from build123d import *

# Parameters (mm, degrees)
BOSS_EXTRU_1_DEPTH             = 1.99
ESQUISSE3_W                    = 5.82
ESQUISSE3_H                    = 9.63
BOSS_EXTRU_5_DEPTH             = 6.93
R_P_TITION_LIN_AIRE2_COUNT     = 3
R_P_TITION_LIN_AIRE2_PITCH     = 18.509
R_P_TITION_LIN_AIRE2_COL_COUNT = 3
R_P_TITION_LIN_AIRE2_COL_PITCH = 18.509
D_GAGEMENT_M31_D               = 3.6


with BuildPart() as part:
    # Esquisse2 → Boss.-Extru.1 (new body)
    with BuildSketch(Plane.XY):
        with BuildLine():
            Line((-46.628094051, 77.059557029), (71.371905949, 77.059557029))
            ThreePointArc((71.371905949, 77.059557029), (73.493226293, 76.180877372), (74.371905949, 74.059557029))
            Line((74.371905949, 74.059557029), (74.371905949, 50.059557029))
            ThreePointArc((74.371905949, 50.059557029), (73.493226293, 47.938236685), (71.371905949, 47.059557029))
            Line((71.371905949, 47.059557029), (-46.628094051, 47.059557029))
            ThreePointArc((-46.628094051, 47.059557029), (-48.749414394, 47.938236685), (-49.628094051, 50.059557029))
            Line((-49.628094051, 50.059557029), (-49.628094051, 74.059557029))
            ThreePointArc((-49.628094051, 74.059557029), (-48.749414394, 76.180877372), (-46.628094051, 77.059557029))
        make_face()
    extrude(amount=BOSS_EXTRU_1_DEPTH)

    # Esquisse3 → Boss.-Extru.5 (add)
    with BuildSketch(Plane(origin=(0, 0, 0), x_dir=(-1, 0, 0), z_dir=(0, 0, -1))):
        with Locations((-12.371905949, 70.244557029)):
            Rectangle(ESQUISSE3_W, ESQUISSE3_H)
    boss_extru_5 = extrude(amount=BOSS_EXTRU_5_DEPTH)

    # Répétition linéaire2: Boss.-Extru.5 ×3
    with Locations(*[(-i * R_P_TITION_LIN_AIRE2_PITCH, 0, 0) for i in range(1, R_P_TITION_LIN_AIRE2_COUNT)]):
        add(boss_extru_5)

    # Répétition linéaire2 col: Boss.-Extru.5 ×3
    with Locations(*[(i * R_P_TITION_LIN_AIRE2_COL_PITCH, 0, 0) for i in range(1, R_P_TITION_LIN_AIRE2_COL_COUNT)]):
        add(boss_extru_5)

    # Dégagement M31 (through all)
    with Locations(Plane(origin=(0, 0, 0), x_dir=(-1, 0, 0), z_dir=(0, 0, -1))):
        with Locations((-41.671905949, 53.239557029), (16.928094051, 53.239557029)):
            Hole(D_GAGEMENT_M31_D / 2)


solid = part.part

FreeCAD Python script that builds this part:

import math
import FreeCAD as App
import Part
import Sketcher

V = App.Vector
Q = App.Units.Quantity


def add_polygon(sketch, points):
    """Adds a closed chain of lines whose ends are joined by coincident constraints."""
    first, n = sketch.GeometryCount, len(points)
    for a, b in zip(points, points[1:] + points[:1]):
        sketch.addGeometry(Part.LineSegment(App.Vector(*a, 0), App.Vector(*b, 0)), False)
    for i in range(n):
        sketch.addConstraint(Sketcher.Constraint("Coincident", first + i, 2, first + (i + 1) % n, 1))

doc = App.newDocument("Part")
body = doc.addObject("PartDesign::Body", "Body")

# Sketch on XY plane
sketch1 = body.newObject("Sketcher::SketchObject", "Sketch")
sketch1.AttachmentSupport = (doc.getObject("XY_Plane"), [""])
sketch1.MapMode = "FlatFace"
sketch1.addGeometry([
    Part.LineSegment(V(71.4, 77.1, 0), V(-46.6, 77.1, 0)),  # 0
    Part.ArcOfCircle(Part.Circle(V(-46.6, 74.1, 0), V(0, 0, 1), 3), math.radians(90), math.radians(180)),  # 1
    Part.LineSegment(V(-49.6, 74.1, 0), V(-49.6, 50.1, 0)),  # 2
    Part.ArcOfCircle(Part.Circle(V(-46.6, 50.1, 0), V(0, 0, 1), 3), math.radians(180), math.radians(270)),  # 3
    Part.LineSegment(V(-46.6, 47.1, 0), V(71.4, 47.1, 0)),  # 4
    Part.ArcOfCircle(Part.Circle(V(71.4, 50.1, 0), V(0, 0, 1), 3), math.radians(-90), math.radians(0)),  # 5
    Part.LineSegment(V(74.4, 50.1, 0), V(74.4, 74.1, 0)),  # 6
    Part.ArcOfCircle(Part.Circle(V(71.4, 74.1, 0), V(0, 0, 1), 3), math.radians(0), math.radians(90)),  # 7
], False)
sketch1.addConstraint([
    Sketcher.Constraint("Tangent", 0, 2, 1, 1),
    Sketcher.Constraint("Tangent", 1, 2, 2, 1),
    Sketcher.Constraint("Tangent", 2, 2, 3, 1),
    Sketcher.Constraint("Tangent", 3, 2, 4, 1),
    Sketcher.Constraint("Tangent", 4, 2, 5, 1),
    Sketcher.Constraint("Tangent", 5, 2, 6, 1),
    Sketcher.Constraint("Tangent", 6, 2, 7, 1),
    Sketcher.Constraint("Tangent", 7, 2, 0, 1),
    Sketcher.Constraint("Horizontal", 0),
    Sketcher.Constraint("Vertical", 2),
    Sketcher.Constraint("Horizontal", 4),
    Sketcher.Constraint("Vertical", 6),
    Sketcher.Constraint("Equal", 1, 3),
    Sketcher.Constraint("Equal", 3, 5),
    Sketcher.Constraint("Equal", 5, 7),
    Sketcher.Constraint("Radius", 1, Q("3 mm")),
    Sketcher.Constraint("DistanceX", 0, 2, 0, 1, Q("118 mm")),
    Sketcher.Constraint("DistanceY", 2, 2, 2, 1, Q("24 mm")),
    Sketcher.Constraint("DistanceX", 1, 3, -1, 1, Q("46.628094 mm")),
    Sketcher.Constraint("DistanceY", -1, 1, 1, 3, Q("74.059557 mm")),
])
pad1 = body.newObject("PartDesign::Pad", "Pad")
pad1.Profile = sketch1
pad1.Length = 1.99

# Sketch on XY plane
sketch2 = body.newObject("Sketcher::SketchObject", "Sketch001")
sketch2.AttachmentSupport = (doc.getObject("XY_Plane"), [""])
sketch2.MapMode = "FlatFace"
add_polygon(sketch2, [(15, 75), (15, 65), (9, 65), (9, 75)])  # lines 0-3
sketch2.addConstraint([
    Sketcher.Constraint("Vertical", 0),
    Sketcher.Constraint("Horizontal", 1),
    Sketcher.Constraint("Vertical", 2),
    Sketcher.Constraint("Horizontal", 3),
    Sketcher.Constraint("DistanceX", 1, 2, 1, 1, Q("5.82 mm")),
    Sketcher.Constraint("DistanceY", 0, 2, 0, 1, Q("9.63 mm")),
    Sketcher.Constraint("DistanceX", -1, 1, 0, 2, Q("15.281906 mm")),
    Sketcher.Constraint("DistanceY", -1, 1, 0, 2, Q("65.429557 mm")),
])
pad2 = body.newObject("PartDesign::Pad", "Pad001")
pad2.Profile = sketch2
pad2.Length = 6.93
pad2.Reversed = True
doc.recompute()

linearpattern = body.newObject("PartDesign::LinearPattern", "LinearPattern")
linearpattern.Originals = [pad2]
linearpattern.Direction = (doc.getObject("X_Axis"), [""])
linearpattern.Mode = "offset"
linearpattern.Offset = 18.509
linearpattern.Occurrences = 3
linearpattern.Reversed = True
body.Tip = linearpattern
doc.recompute()

linearpattern2 = body.newObject("PartDesign::LinearPattern", "LinearPattern001")
linearpattern2.Originals = [pad2]
linearpattern2.Direction = (doc.getObject("X_Axis"), [""])
linearpattern2.Mode = "offset"
linearpattern2.Offset = 18.509
linearpattern2.Occurrences = 3
body.Tip = linearpattern2

# Sketch on XY plane
sketch3 = body.newObject("Sketcher::SketchObject", "Sketch002")
sketch3.AttachmentSupport = (doc.getObject("XY_Plane"), [""])
sketch3.MapMode = "FlatFace"
sketch3.addGeometry([
    Part.Circle(V(41.7, 53.2, 0), V(0, 0, 1), 1.8),
    Part.Circle(V(-16.9, 53.2, 0), V(0, 0, 1), 1.8),
], False)
sketch3.addConstraint([
    Sketcher.Constraint("Equal", 0, 1),
    Sketcher.Constraint("Horizontal", 0, 3, 1, 3),
    Sketcher.Constraint("Diameter", 0, Q("3.6 mm")),
    Sketcher.Constraint("DistanceX", 1, 3, 0, 3, Q("58.6 mm")),
    Sketcher.Constraint("DistanceX", -1, 1, 0, 3, Q("41.671906 mm")),
    Sketcher.Constraint("DistanceY", -1, 1, 0, 3, Q("53.239557 mm")),
])
doc.recompute()
hole = body.newObject("PartDesign::Hole", "Hole")
hole.Profile = sketch3
hole.ThreadType = "None"
hole.Diameter = 3.6
hole.DepthType = "ThroughAll"
hole.Reversed = True

doc.recompute()
